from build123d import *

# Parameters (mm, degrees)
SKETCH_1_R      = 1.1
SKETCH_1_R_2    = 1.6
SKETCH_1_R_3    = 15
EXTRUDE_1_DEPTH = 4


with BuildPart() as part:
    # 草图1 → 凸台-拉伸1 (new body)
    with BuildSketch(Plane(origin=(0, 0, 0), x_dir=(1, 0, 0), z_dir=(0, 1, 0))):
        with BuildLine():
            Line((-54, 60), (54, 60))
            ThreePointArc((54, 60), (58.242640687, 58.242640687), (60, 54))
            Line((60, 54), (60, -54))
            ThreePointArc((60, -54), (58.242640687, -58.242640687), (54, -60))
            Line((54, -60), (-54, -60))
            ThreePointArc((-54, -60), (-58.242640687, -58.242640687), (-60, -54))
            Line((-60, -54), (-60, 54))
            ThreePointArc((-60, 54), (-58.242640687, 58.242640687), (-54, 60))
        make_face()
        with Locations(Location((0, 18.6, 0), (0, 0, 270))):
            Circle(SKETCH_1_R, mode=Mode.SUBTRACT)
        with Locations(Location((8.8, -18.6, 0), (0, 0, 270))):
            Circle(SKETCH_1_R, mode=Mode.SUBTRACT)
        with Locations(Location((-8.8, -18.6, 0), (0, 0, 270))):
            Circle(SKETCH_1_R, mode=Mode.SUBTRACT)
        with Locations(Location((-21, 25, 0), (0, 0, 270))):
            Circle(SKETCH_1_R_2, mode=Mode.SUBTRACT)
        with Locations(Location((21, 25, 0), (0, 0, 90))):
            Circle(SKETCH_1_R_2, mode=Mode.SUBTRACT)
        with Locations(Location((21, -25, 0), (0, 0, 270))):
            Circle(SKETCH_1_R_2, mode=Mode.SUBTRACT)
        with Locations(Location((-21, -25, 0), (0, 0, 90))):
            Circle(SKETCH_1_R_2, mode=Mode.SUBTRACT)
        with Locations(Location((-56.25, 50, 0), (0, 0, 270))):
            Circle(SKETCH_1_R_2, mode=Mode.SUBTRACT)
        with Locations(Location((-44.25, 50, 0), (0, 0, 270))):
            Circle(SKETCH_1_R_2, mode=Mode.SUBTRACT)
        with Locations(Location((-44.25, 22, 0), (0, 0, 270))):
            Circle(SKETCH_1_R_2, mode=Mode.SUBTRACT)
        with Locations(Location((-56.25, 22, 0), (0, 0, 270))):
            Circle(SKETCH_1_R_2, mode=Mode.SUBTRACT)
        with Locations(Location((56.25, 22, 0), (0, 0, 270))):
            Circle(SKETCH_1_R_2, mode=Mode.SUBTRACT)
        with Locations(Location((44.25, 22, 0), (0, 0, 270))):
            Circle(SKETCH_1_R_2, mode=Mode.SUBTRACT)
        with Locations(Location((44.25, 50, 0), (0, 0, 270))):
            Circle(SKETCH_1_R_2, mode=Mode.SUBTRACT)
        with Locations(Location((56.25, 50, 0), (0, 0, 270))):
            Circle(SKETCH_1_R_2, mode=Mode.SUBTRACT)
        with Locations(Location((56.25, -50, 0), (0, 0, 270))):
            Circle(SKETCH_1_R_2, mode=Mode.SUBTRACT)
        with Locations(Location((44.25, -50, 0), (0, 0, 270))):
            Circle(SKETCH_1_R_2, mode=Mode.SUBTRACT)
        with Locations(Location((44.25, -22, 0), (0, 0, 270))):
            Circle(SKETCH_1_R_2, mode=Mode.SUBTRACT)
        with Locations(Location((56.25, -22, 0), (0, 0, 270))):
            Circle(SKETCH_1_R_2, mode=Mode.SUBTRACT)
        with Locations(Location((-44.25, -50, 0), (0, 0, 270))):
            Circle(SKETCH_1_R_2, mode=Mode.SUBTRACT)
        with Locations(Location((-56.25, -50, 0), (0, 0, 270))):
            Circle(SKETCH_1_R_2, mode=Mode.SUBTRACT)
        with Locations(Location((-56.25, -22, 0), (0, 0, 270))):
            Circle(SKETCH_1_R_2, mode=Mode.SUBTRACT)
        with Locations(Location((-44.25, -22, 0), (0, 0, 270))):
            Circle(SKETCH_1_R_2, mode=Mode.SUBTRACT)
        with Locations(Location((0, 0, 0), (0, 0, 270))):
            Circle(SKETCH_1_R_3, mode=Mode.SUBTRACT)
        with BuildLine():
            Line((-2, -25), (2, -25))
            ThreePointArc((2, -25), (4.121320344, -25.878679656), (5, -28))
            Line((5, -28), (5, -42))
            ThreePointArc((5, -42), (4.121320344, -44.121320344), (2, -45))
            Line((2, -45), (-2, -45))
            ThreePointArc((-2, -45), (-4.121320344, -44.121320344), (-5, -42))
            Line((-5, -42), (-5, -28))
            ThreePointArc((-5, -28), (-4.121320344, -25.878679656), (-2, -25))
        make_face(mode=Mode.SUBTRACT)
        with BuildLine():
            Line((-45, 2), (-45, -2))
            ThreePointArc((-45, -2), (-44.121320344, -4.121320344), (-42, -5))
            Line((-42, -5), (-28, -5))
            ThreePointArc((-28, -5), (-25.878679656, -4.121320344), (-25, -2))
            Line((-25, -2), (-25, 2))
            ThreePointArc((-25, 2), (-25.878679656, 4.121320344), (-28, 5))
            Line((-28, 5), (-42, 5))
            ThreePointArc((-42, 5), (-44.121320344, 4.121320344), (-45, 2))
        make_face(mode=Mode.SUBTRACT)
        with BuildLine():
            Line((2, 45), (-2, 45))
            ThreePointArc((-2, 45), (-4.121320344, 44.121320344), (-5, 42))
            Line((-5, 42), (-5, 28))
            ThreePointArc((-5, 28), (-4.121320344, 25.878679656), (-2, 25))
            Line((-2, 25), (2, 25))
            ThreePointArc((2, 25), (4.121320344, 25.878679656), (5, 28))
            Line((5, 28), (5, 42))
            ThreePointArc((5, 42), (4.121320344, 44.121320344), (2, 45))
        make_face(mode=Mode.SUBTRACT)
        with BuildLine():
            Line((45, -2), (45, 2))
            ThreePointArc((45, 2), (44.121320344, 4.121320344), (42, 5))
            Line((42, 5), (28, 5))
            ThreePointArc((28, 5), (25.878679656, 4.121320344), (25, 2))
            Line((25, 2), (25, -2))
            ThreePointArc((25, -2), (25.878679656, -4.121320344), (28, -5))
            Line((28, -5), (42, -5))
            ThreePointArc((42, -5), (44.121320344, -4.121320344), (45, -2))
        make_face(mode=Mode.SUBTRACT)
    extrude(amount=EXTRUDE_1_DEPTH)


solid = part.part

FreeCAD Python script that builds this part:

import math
import FreeCAD as App
import Part
import Sketcher
from FreeCAD import Vector

doc = App.newDocument("Part")
params = doc.addObject("Spreadsheet::Sheet", "Params")
for row, (alias, value) in enumerate([
    ("sketch1_diameter", "30 mm"),
    ("sketch1_radius", "6 mm"),
    ("sketch1_radius2", "3 mm"),
    ("sketch1_diameter2", "3.2 mm"),
    ("sketch1_diameter3", "2.2 mm"),
    ("pad1_length", "4 mm"),
], start=1):
    params.set(f"A{row}", alias)
    params.set(f"B{row}", "=" + value)
    params.setAlias(f"B{row}", alias)

body = doc.addObject("PartDesign::Body", "Body")

sketch1 = doc.addObject("Sketcher::SketchObject", "Sketch")
body.addObject(sketch1)
sketch1.AttachmentSupport = (doc.XZ_Plane, [""])
sketch1.MapMode = "FlatFace"
sketch1.addGeometry([
    Part.LineSegment(Vector(54, -60, 0), Vector(-54, -60, 0)),
    Part.ArcOfCircle(Part.Circle(Vector(-54, -54, 0), Vector(0, 0, 1), 6), math.radians(180), math.radians(270)),
    Part.LineSegment(Vector(-60, -54, 0), Vector(-60, 54, 0)),
    Part.ArcOfCircle(Part.Circle(Vector(-54, 54, 0), Vector(0, 0, 1), 6), math.radians(90), math.radians(180)),
    Part.LineSegment(Vector(-54, 60, 0), Vector(54, 60, 0)),
    Part.ArcOfCircle(Part.Circle(Vector(54, 54, 0), Vector(0, 0, 1), 6), math.radians(0), math.radians(90)),
    Part.LineSegment(Vector(60, 54, 0), Vector(60, -54, 0)),
    Part.ArcOfCircle(Part.Circle(Vector(54, -54, 0), Vector(0, 0, 1), 6), math.radians(-90), math.radians(0)),
    Part.Circle(Vector(56.2, 50, 0), Vector(0, 0, 1), 1.6),
    Part.Circle(Vector(44.2, 50, 0), Vector(0, 0, 1), 1.6),
    Part.LineSegment(Vector(-2, 25, 0), Vector(2, 25, 0)),
    Part.ArcOfCircle(Part.Circle(Vector(2, 28, 0), Vector(0, 0, 1), 3), math.radians(-90), math.radians(0)),
    Part.LineSegment(Vector(5, 28, 0), Vector(5, 42, 0)),
    Part.ArcOfCircle(Part.Circle(Vector(2, 42, 0), Vector(0, 0, 1), 3), math.radians(0), math.radians(90)),
    Part.LineSegment(Vector(2, 45, 0), Vector(-2, 45, 0)),
    Part.ArcOfCircle(Part.Circle(Vector(-2, 42, 0), Vector(0, 0, 1), 3), math.radians(90), math.radians(180)),
    Part.LineSegment(Vector(-5, 42, 0), Vector(-5, 28, 0)),
    Part.ArcOfCircle(Part.Circle(Vector(-2, 28, 0), Vector(0, 0, 1), 3), math.radians(180), math.radians(270)),
    Part.Circle(Vector(56.2, 22, 0), Vector(0, 0, 1), 1.6),
    Part.Circle(Vector(44.2, 22, 0), Vector(0, 0, 1), 1.6),
    Part.Circle(Vector(21, 25, 0), Vector(0, 0, 1), 1.6),
    Part.Circle(Vector(8.8, 18.6, 0), Vector(0, 0, 1), 1.1),
    Part.Circle(Vector(-44.2, 50, 0), Vector(0, 0, 1), 1.6),
    Part.Circle(Vector(-56.2, 50, 0), Vector(0, 0, 1), 1.6),
    Part.Circle(Vector(-8.8, 18.6, 0), Vector(0, 0, 1), 1.1),
    Part.Circle(Vector(-21, 25, 0), Vector(0, 0, 1), 1.6),
    Part.Circle(Vector(-44.2, 22, 0), Vector(0, 0, 1), 1.6),
    Part.Circle(Vector(-56.2, 22, 0), Vector(0, 0, 1), 1.6),
    Part.ArcOfCircle(Part.Circle(Vector(42, 2, 0), Vector(0, 0, 1), 3), math.radians(0), math.radians(90)),
    Part.LineSegment(Vector(42, 5, 0), Vector(28, 5, 0)),
    Part.ArcOfCircle(Part.Circle(Vector(28, 2, 0), Vector(0, 0, 1), 3), math.radians(90), math.radians(180)),
    Part.LineSegment(Vector(25, 2, 0), Vector(25, -2, 0)),
    Part.ArcOfCircle(Part.Circle(Vector(28, -2, 0), Vector(0, 0, 1), 3), math.radians(180), math.radians(270)),
    Part.LineSegment(Vector(28, -5, 0), Vector(42, -5, 0)),
    Part.ArcOfCircle(Part.Circle(Vector(42, -2, 0), Vector(0, 0, 1), 3), math.radians(-90), math.radians(0)),
    Part.LineSegment(Vector(45, -2, 0), Vector(45, 2, 0)),
    Part.Circle(Vector(56.2, -22, 0), Vector(0, 0, 1), 1.6),
    Part.Circle(Vector(44.2, -22, 0), Vector(0, 0, 1), 1.6),
    Part.Circle(Vector(0, 0, 0), Vector(0, 0, 1), 15),
    Part.Circle(Vector(21, -25, 0), Vector(0, 0, 1), 1.6),
    Part.Circle(Vector(0, -18.6, 0), Vector(0, 0, 1), 1.1),
    Part.Circle(Vector(56.2, -50, 0), Vector(0, 0, 1), 1.6),
    Part.Circle(Vector(44.2, -50, 0), Vector(0, 0, 1), 1.6),
    Part.ArcOfCircle(Part.Circle(Vector(2, -42, 0), Vector(0, 0, 1), 3), math.radians(-90), math.radians(0)),
    Part.LineSegment(Vector(5, -42, 0), Vector(5, -28, 0)),
    Part.ArcOfCircle(Part.Circle(Vector(2, -28, 0), Vector(0, 0, 1), 3), math.radians(0), math.radians(90)),
    Part.LineSegment(Vector(2, -25, 0), Vector(-2, -25, 0)),
    Part.ArcOfCircle(Part.Circle(Vector(-2, -28, 0), Vector(0, 0, 1), 3), math.radians(90), math.radians(180)),
    Part.LineSegment(Vector(-5, -28, 0), Vector(-5, -42, 0)),
    Part.ArcOfCircle(Part.Circle(Vector(-2, -42, 0), Vector(0, 0, 1), 3), math.radians(180), math.radians(270)),
    Part.LineSegment(Vector(-2, -45, 0), Vector(2, -45, 0)),
    Part.Circle(Vector(-21, -25, 0), Vector(0, 0, 1), 1.6),
    Part.ArcOfCircle(Part.Circle(Vector(-42, -2, 0), Vector(0, 0, 1), 3), math.radians(180), math.radians(270)),
    Part.LineSegment(Vector(-42, -5, 0), Vector(-28, -5, 0)),
    Part.ArcOfCircle(Part.Circle(Vector(-28, -2, 0), Vector(0, 0, 1), 3), math.radians(-90), math.radians(0)),
    Part.LineSegment(Vector(-25, -2, 0), Vector(-25, 2, 0)),
    Part.ArcOfCircle(Part.Circle(Vector(-28, 2, 0), Vector(0, 0, 1), 3), math.radians(0), math.radians(90)),
    Part.LineSegment(Vector(-28, 5, 0), Vector(-42, 5, 0)),
    Part.ArcOfCircle(Part.Circle(Vector(-42, 2, 0), Vector(0, 0, 1), 3), math.radians(90), math.radians(180)),
    Part.LineSegment(Vector(-45, 2, 0), Vector(-45, -2, 0)),
    Part.Circle(Vector(-44.2, -22, 0), Vector(0, 0, 1), 1.6),
    Part.Circle(Vector(-56.2, -22, 0), Vector(0, 0, 1), 1.6),
    Part.Circle(Vector(-44.2, -50, 0), Vector(0, 0, 1), 1.6),
    Part.Circle(Vector(-56.2, -50, 0), Vector(0, 0, 1), 1.6),
], False)
sketch1.addConstraint([
    Sketcher.Constraint("Tangent", 0, 2, 1, 2),
    Sketcher.Constraint("Tangent", 1, 1, 2, 1),
    Sketcher.Constraint("Tangent", 2, 2, 3, 2),
    Sketcher.Constraint("Tangent", 3, 1, 4, 1),
    Sketcher.Constraint("Tangent", 4, 2, 5, 2),
    Sketcher.Constraint("Tangent", 5, 1, 6, 1),
    Sketcher.Constraint("Tangent", 6, 2, 7, 2),
    Sketcher.Constraint("Tangent", 7, 1, 0, 1),
    Sketcher.Constraint("Tangent", 10, 2, 11, 1),
    Sketcher.Constraint("Tangent", 11, 2, 12, 1),
    Sketcher.Constraint("Tangent", 12, 2, 13, 1),
    Sketcher.Constraint("Tangent", 13, 2, 14, 1),
    Sketcher.Constraint("Tangent", 14, 2, 15, 1),
    Sketcher.Constraint("Tangent", 15, 2, 16, 1),
    Sketcher.Constraint("Tangent", 16, 2, 17, 1),
    Sketcher.Constraint("Tangent", 17, 2, 10, 1),
    Sketcher.Constraint("Tangent", 28, 2, 29, 1),
    Sketcher.Constraint("Tangent", 29, 2, 30, 1),
    Sketcher.Constraint("Tangent", 30, 2, 31, 1),
    Sketcher.Constraint("Tangent", 31, 2, 32, 1),
    Sketcher.Constraint("Tangent", 32, 2, 33, 1),
    Sketcher.Constraint("Tangent", 33, 2, 34, 1),
    Sketcher.Constraint("Tangent", 34, 2, 35, 1),
    Sketcher.Constraint("Tangent", 35, 2, 28, 1),
    Sketcher.Constraint("Tangent", 43, 2, 44, 1),
    Sketcher.Constraint("Tangent", 44, 2, 45, 1),
    Sketcher.Constraint("Tangent", 45, 2, 46, 1),
    Sketcher.Constraint("Tangent", 46, 2, 47, 1),
    Sketcher.Constraint("Tangent", 47, 2, 48, 1),
    Sketcher.Constraint("Tangent", 48, 2, 49, 1),
    Sketcher.Constraint("Tangent", 49, 2, 50, 1),
    Sketcher.Constraint("Tangent", 50, 2, 43, 1),
    Sketcher.Constraint("Tangent", 52, 2, 53, 1),
    Sketcher.Constraint("Tangent", 53, 2, 54, 1),
    Sketcher.Constraint("Tangent", 54, 2, 55, 1),
    Sketcher.Constraint("Tangent", 55, 2, 56, 1),
    Sketcher.Constraint("Tangent", 56, 2, 57, 1),
    Sketcher.Constraint("Tangent", 57, 2, 58, 1),
    Sketcher.Constraint("Tangent", 58, 2, 59, 1),
    Sketcher.Constraint("Tangent", 59, 2, 52, 1),
    Sketcher.Constraint("Horizontal", 0),
    Sketcher.Constraint("Vertical", 2),
    Sketcher.Constraint("Horizontal", 4),
    Sketcher.Constraint("Vertical", 6),
    Sketcher.Constraint("Horizontal", 10),
    Sketcher.Constraint("Vertical", 12),
    Sketcher.Constraint("Horizontal", 14),
    Sketcher.Constraint("Vertical", 16),
    Sketcher.Constraint("Horizontal", 29),
    Sketcher.Constraint("Vertical", 31),
    Sketcher.Constraint("Horizontal", 33),
    Sketcher.Constraint("Vertical", 35),
    Sketcher.Constraint("Vertical", 44),
    Sketcher.Constraint("Horizontal", 46),
    Sketcher.Constraint("Vertical", 48),
    Sketcher.Constraint("Horizontal", 50),
    Sketcher.Constraint("Horizontal", 53),
    Sketcher.Constraint("Vertical", 55),
    Sketcher.Constraint("Horizontal", 57),
    Sketcher.Constraint("Vertical", 59),
    Sketcher.Constraint("Coincident", 38, 3, -1, 1),
    Sketcher.Constraint("Equal", 1, 3),
    Sketcher.Constraint("Equal", 3, 5),
    Sketcher.Constraint("Equal", 5, 7),
    Sketcher.Constraint("Equal", 8, 9),
    Sketcher.Constraint("Equal", 11, 13),
    Sketcher.Constraint("Equal", 13, 15),
    Sketcher.Constraint("Equal", 15, 17),
    Sketcher.Constraint("Equal", 9, 18),
    Sketcher.Constraint("Equal", 18, 19),
    Sketcher.Constraint("Equal", 19, 20),
    Sketcher.Constraint("Equal", 20, 22),
    Sketcher.Constraint("Equal", 22, 23),
    Sketcher.Constraint("Equal", 21, 24),
    Sketcher.Constraint("Equal", 23, 25),
    Sketcher.Constraint("Equal", 25, 26),
    Sketcher.Constraint("Equal", 26, 27),
    Sketcher.Constraint("Equal", 17, 28),
    Sketcher.Constraint("Equal", 28, 30),
    Sketcher.Constraint("Equal", 30, 32),
    Sketcher.Constraint("Equal", 32, 34),
    Sketcher.Constraint("Equal", 27, 36),
    Sketcher.Constraint("Equal", 36, 37),
    Sketcher.Constraint("Equal", 37, 39),
    Sketcher.Constraint("Equal", 24, 40),
    Sketcher.Constraint("Equal", 39, 41),
    Sketcher.Constraint("Equal", 41, 42),
    Sketcher.Constraint("Equal", 34, 43),
    Sketcher.Constraint("Equal", 43, 45),
    Sketcher.Constraint("Equal", 45, 47),
    Sketcher.Constraint("Equal", 47, 49),
    Sketcher.Constraint("Equal", 42, 51),
    Sketcher.Constraint("Equal", 49, 52),
    Sketcher.Constraint("Equal", 52, 54),
    Sketcher.Constraint("Equal", 54, 56),
    Sketcher.Constraint("Equal", 56, 58),
    Sketcher.Constraint("Equal", 51, 60),
    Sketcher.Constraint("Equal", 60, 61),
    Sketcher.Constraint("Equal", 61, 62),
    Sketcher.Constraint("Equal", 62, 63),
    Sketcher.Constraint("Symmetric", 1, 3, 5, 3, -1, 1),
    Sketcher.Constraint("Symmetric", 27, 3, 36, 3, -1, 1),
    Sketcher.Constraint("Symmetric", 26, 3, 37, 3, -1, 1),
    Sketcher.Constraint("Symmetric", 25, 3, 39, 3, -1, 1),
    Sketcher.Constraint("Symmetric", 23, 3, 41, 3, -1, 1),
    Sketcher.Constraint("Symmetric", 22, 3, 42, 3, -1, 1),
    Sketcher.Constraint("Symmetric", 15, 3, 43, 3, -1, 1),
    Sketcher.Constraint("Symmetric", 11, 3, 47, 3, -1, 1),
    Sketcher.Constraint("Symmetric", 20, 3, 51, 3, -1, 1),
    Sketcher.Constraint("Symmetric", 28, 3, 52, 3, -1, 1),
    Sketcher.Constraint("Symmetric", 32, 3, 56, 3, -1, 1),
    Sketcher.Constraint("Symmetric", 19, 3, 60, 3, -1, 1),
    Sketcher.Constraint("Symmetric", 18, 3, 61, 3, -1, 1),
    Sketcher.Constraint("Symmetric", 9, 3, 62, 3, -1, 1),
    Sketcher.Constraint("Symmetric", 8, 3, 63, 3, -1, 1),
    Sketcher.Constraint("Symmetric", 9, 3, 22, 3, -2),
    Sketcher.Constraint("Symmetric", 8, 3, 23, 3, -2),
    Sketcher.Constraint("Symmetric", 21, 3, 24, 3, -2),
    Sketcher.Constraint("Symmetric", 20, 3, 25, 3, -2),
    Sketcher.Constraint("Symmetric", 19, 3, 26, 3, -2),
    Sketcher.Constraint("Symmetric", 18, 3, 27, 3, -2),
    Sketcher.Constraint("PointOnObject", 40, 3, -2),
    Sketcher.Constraint("Horizontal", 8, 3, 9, 3),
    Sketcher.Constraint("Horizontal", 18, 3, 19, 3),
    Sketcher.Constraint("Horizontal", 34, 3, 52, 3),
    Sketcher.Constraint("Horizontal", 25, 3, 10, 2),
    Sketcher.Constraint("Vertical", 8, 3, 18, 3),
    Sketcher.Constraint("Vertical", 9, 3, 19, 3),
    Sketcher.Constraint("Vertical", 13, 3, 43, 3),
    Sketcher.Constraint("Equal", 4, 2),
    Sketcher.Constraint("Equal", 57, 12),
    Sketcher.Constraint("Equal", 50, 31),
    Sketcher.Constraint("Diameter", 38, 30.0),
    Sketcher.Constraint("Radius", 1, 6.0),
    Sketcher.Constraint("Radius", 11, 3.0),
    Sketcher.Constraint("Diameter", 8, 3.2),
    Sketcher.Constraint("Diameter", 21, 2.2),
    Sketcher.Constraint("DistanceX", 0, 2, 0, 1, 108.0),
    Sketcher.Constraint("DistanceX", 10, 1, 10, 2, 4.0),
    Sketcher.Constraint("DistanceX", 29, 2, 29, 1, 14.0),
    Sketcher.Constraint("DistanceY", -1, 1, 8, 3, 50.0),
    Sketcher.Constraint("DistanceY", -1, 1, 11, 3, 28.0),
    Sketcher.Constraint("DistanceY", -1, 1, 18, 3, 22.0),
    Sketcher.Constraint("DistanceX", -1, 1, 20, 3, 21.0),
    Sketcher.Constraint("DistanceX", -1, 1, 28, 3, 42.0),
    Sketcher.Constraint("DistanceX", -1, 1, 21, 3, 8.8),
    Sketcher.Constraint("DistanceY", -1, 1, 21, 3, 18.6),
    Sketcher.Constraint("DistanceY", 40, 3, -1, 1, 18.6),
    Sketcher.Constraint("DistanceX", -1, 1, 8, 3, 56.25),
    Sketcher.Constraint("DistanceX", -1, 1, 9, 3, 44.25),
])
sketch1.setExpression("Constraints[132]", "Params.sketch1_diameter")
sketch1.setExpression("Constraints[133]", "Params.sketch1_radius")
sketch1.setExpression("Constraints[134]", "Params.sketch1_radius2")
sketch1.setExpression("Constraints[135]", "Params.sketch1_diameter2")
sketch1.setExpression("Constraints[136]", "Params.sketch1_diameter3")
pad1 = doc.addObject("PartDesign::Pad", "Pad")
body.addObject(pad1)
pad1.Profile = sketch1
pad1.setExpression("Length", "Params.pad1_length")
pad1.Reversed = True

doc.recompute()
